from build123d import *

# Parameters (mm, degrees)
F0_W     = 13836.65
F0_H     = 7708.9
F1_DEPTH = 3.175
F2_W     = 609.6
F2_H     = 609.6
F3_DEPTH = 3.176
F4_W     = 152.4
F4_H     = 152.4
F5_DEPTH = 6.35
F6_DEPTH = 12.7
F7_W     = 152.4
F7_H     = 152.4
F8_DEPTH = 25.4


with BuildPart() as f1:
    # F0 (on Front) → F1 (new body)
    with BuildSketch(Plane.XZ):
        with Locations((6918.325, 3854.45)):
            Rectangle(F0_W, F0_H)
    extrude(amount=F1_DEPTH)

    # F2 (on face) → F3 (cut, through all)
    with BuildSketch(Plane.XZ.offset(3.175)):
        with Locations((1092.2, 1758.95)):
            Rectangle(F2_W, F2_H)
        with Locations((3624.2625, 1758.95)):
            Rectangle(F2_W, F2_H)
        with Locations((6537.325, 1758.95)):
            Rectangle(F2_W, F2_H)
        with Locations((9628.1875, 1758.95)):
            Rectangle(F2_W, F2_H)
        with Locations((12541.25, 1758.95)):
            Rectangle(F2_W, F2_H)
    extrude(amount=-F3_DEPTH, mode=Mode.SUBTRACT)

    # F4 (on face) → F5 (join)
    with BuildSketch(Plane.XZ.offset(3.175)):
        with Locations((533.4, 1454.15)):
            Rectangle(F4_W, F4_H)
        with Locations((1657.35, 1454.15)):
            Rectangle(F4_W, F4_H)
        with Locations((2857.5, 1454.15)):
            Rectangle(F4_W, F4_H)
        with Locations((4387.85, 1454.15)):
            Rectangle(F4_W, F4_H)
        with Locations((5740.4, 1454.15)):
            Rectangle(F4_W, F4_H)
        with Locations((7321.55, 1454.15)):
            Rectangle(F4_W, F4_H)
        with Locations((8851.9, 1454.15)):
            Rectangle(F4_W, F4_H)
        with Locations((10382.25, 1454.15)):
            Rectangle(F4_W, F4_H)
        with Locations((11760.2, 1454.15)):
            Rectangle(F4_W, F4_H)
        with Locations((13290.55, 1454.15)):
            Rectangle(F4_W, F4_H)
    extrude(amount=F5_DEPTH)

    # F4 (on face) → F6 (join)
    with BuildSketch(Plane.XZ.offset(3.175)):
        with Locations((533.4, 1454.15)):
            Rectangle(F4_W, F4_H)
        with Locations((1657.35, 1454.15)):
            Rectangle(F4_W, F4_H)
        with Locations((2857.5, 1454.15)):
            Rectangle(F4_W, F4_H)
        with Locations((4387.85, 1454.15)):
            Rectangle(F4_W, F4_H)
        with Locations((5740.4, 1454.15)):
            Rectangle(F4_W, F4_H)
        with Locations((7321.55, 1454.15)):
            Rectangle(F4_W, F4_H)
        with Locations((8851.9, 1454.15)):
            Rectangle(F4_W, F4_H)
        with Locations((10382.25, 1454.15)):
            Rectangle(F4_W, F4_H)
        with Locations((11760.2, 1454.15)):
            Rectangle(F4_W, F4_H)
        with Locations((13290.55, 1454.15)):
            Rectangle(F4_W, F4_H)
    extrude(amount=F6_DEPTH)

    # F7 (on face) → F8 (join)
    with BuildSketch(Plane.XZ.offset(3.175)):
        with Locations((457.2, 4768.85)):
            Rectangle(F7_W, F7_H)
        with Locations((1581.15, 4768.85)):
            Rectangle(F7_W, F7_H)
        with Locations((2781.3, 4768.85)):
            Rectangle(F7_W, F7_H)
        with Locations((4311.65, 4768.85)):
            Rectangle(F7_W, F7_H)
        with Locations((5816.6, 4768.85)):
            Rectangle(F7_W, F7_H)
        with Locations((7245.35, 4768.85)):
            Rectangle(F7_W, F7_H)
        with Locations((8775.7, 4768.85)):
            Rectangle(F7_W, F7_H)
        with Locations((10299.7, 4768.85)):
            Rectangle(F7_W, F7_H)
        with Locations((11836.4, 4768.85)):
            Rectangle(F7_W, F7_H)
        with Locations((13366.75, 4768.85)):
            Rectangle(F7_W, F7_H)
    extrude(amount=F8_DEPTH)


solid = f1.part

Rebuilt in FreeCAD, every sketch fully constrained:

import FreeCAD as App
import Part
import Sketcher
Q = App.Units.Quantity


def add_polygon(sketch, points):
    """Adds a closed chain of lines whose ends are joined by coincident constraints."""
    first, n = sketch.GeometryCount, len(points)
    for a, b in zip(points, points[1:] + points[:1]):
        sketch.addGeometry(Part.LineSegment(App.Vector(*a, 0), App.Vector(*b, 0)), False)
    for i in range(n):
        sketch.addConstraint(Sketcher.Constraint("Coincident", first + i, 2, first + (i + 1) % n, 1))

doc = App.newDocument("Part")
body = doc.addObject("PartDesign::Body", "Body")

# Sketch on XZ plane
sketch1 = body.newObject("Sketcher::SketchObject", "Sketch")
sketch1.AttachmentSupport = (doc.getObject("XZ_Plane"), [""])
sketch1.MapMode = "FlatFace"
add_polygon(sketch1, [(0, 7709), (0, 0), (13837, 0), (13837, 7709)])  # lines 0-3
sketch1.addConstraint([
    Sketcher.Constraint("Vertical", 0),
    Sketcher.Constraint("Horizontal", 1),
    Sketcher.Constraint("Vertical", 2),
    Sketcher.Constraint("Horizontal", 3),
    Sketcher.Constraint("Coincident", 0, 2, -1, 1),
    Sketcher.Constraint("DistanceY", 0, 2, 0, 1, Q("303.5 in")),
    Sketcher.Constraint("DistanceX", 1, 1, 1, 2, Q("544.75 in")),
])
pad1 = body.newObject("PartDesign::Pad", "Pad")
pad1.Profile = sketch1
pad1.Length = Q("0.125 in")

# Sketch on XZ plane
sketch2 = body.newObject("Sketcher::SketchObject", "Sketch001")
sketch2.AttachmentSupport = (doc.getObject("XZ_Plane"), [""])
sketch2.MapMode = "FlatFace"
sketch2.AttachmentOffset = App.Placement(App.Vector(0, 0, 0.125 * 25.4), App.Rotation())
add_polygon(sketch2, [(787, 2064), (787, 1454), (1397, 1454), (1397, 2064)])  # lines 0-3
add_polygon(sketch2, [(3319, 2064), (3319, 1454), (3929, 1454), (3929, 2064)])  # lines 4-7
add_polygon(sketch2, [(6233, 2064), (6233, 1454), (6842, 1454), (6842, 2064)])  # lines 8-11
add_polygon(sketch2, [(9323, 2064), (9323, 1454), (9933, 1454), (9933, 2064)])  # lines 12-15
add_polygon(sketch2, [(12236, 2064), (12236, 1454), (12846, 1454), (12846, 2064)])  # lines 16-19
sketch2.addConstraint([
    Sketcher.Constraint("Vertical", 0),
    Sketcher.Constraint("Horizontal", 1),
    Sketcher.Constraint("Vertical", 2),
    Sketcher.Constraint("Horizontal", 3),
    Sketcher.Constraint("Vertical", 4),
    Sketcher.Constraint("Horizontal", 5),
    Sketcher.Constraint("Vertical", 6),
    Sketcher.Constraint("Horizontal", 7),
    Sketcher.Constraint("Vertical", 8),
    Sketcher.Constraint("Horizontal", 9),
    Sketcher.Constraint("Vertical", 10),
    Sketcher.Constraint("Horizontal", 11),
    Sketcher.Constraint("Vertical", 12),
    Sketcher.Constraint("Horizontal", 13),
    Sketcher.Constraint("Vertical", 14),
    Sketcher.Constraint("Horizontal", 15),
    Sketcher.Constraint("Vertical", 16),
    Sketcher.Constraint("Horizontal", 17),
    Sketcher.Constraint("Vertical", 18),
    Sketcher.Constraint("Horizontal", 19),
    Sketcher.Constraint("Horizontal", 1, 2, 4, 2),
    Sketcher.Constraint("Horizontal", 3, 2, 6, 2),
    Sketcher.Constraint("Horizontal", 5, 2, 8, 2),
    Sketcher.Constraint("Horizontal", 7, 2, 10, 2),
    Sketcher.Constraint("Horizontal", 9, 2, 12, 2),
    Sketcher.Constraint("Horizontal", 11, 2, 14, 2),
    Sketcher.Constraint("Horizontal", 13, 2, 16, 2),
    Sketcher.Constraint("Horizontal", 15, 2, 18, 2),
    Sketcher.Constraint("Equal", 3, 5),
    Sketcher.Constraint("Equal", 7, 9),
    Sketcher.Constraint("Equal", 11, 13),
    Sketcher.Constraint("Equal", 15, 17),
    Sketcher.Constraint("Equal", 19, 0),
    Sketcher.Constraint("DistanceX", 1, 1, 1, 2, Q("24 in")),
    Sketcher.Constraint("DistanceX", -1, 1, 0, 2, Q("31 in")),
    Sketcher.Constraint("DistanceY", -1, 1, 0, 2, Q("57.25 in")),
    Sketcher.Constraint("DistanceX", -1, 1, 16, 2, Q("481.75 in")),
    Sketcher.Constraint("DistanceX", -1, 1, 4, 2, Q("130.6875 in")),
    Sketcher.Constraint("DistanceX", -1, 1, 8, 2, Q("245.375 in")),
    Sketcher.Constraint("DistanceX", -1, 1, 12, 2, Q("367.0625 in")),
])
pocket1 = body.newObject("PartDesign::Pocket", "Pocket")
pocket1.Profile = sketch2
pocket1.Type = "ThroughAll"

# Sketch on XZ plane
sketch3 = body.newObject("Sketcher::SketchObject", "Sketch002")
sketch3.AttachmentSupport = (doc.getObject("XZ_Plane"), [""])
sketch3.MapMode = "FlatFace"
sketch3.AttachmentOffset = App.Placement(App.Vector(0, 0, 0.125 * 25.4), App.Rotation())
add_polygon(sketch3, [(457, 1530), (457, 1378), (610, 1378), (610, 1530)])  # lines 0-3
add_polygon(sketch3, [(1581, 1530), (1581, 1378), (1734, 1378), (1734, 1530)])  # lines 4-7
add_polygon(sketch3, [(2781, 1530), (2781, 1378), (2934, 1378), (2934, 1530)])  # lines 8-11
add_polygon(sketch3, [(4312, 1530), (4312, 1378), (4464, 1378), (4464, 1530)])  # lines 12-15
add_polygon(sketch3, [(5664, 1530), (5664, 1378), (5817, 1378), (5817, 1530)])  # lines 16-19
add_polygon(sketch3, [(7245, 1530), (7245, 1378), (7398, 1378), (7398, 1530)])  # lines 20-23
add_polygon(sketch3, [(8776, 1530), (8776, 1378), (8928, 1378), (8928, 1530)])  # lines 24-27
add_polygon(sketch3, [(10306, 1530), (10306, 1378), (10458, 1378), (10458, 1530)])  # lines 28-31
add_polygon(sketch3, [(11684, 1530), (11684, 1378), (11836, 1378), (11836, 1530)])  # lines 32-35
add_polygon(sketch3, [(13214, 1530), (13214, 1378), (13367, 1378), (13367, 1530)])  # lines 36-39
sketch3.addConstraint([
    Sketcher.Constraint("Vertical", 0),
    Sketcher.Constraint("Horizontal", 1),
    Sketcher.Constraint("Vertical", 2),
    Sketcher.Constraint("Horizontal", 3),
    Sketcher.Constraint("Vertical", 4),
    Sketcher.Constraint("Horizontal", 5),
    Sketcher.Constraint("Vertical", 6),
    Sketcher.Constraint("Horizontal", 7),
    Sketcher.Constraint("Vertical", 8),
    Sketcher.Constraint("Horizontal", 9),
    Sketcher.Constraint("Vertical", 10),
    Sketcher.Constraint("Horizontal", 11),
    Sketcher.Constraint("Vertical", 12),
    Sketcher.Constraint("Horizontal", 13),
    Sketcher.Constraint("Vertical", 14),
    Sketcher.Constraint("Horizontal", 15),
    Sketcher.Constraint("Vertical", 16),
    Sketcher.Constraint("Horizontal", 17),
    Sketcher.Constraint("Vertical", 18),
    Sketcher.Constraint("Horizontal", 19),
    Sketcher.Constraint("Vertical", 20),
    Sketcher.Constraint("Horizontal", 21),
    Sketcher.Constraint("Vertical", 22),
    Sketcher.Constraint("Horizontal", 23),
    Sketcher.Constraint("Vertical", 24),
    Sketcher.Constraint("Horizontal", 25),
    Sketcher.Constraint("Vertical", 26),
    Sketcher.Constraint("Horizontal", 27),
    Sketcher.Constraint("Vertical", 28),
    Sketcher.Constraint("Horizontal", 29),
    Sketcher.Constraint("Vertical", 30),
    Sketcher.Constraint("Horizontal", 31),
    Sketcher.Constraint("Vertical", 32),
    Sketcher.Constraint("Horizontal", 33),
    Sketcher.Constraint("Vertical", 34),
    Sketcher.Constraint("Horizontal", 35),
    Sketcher.Constraint("Vertical", 36),
    Sketcher.Constraint("Horizontal", 37),
    Sketcher.Constraint("Vertical", 38),
    Sketcher.Constraint("Horizontal", 39),
    Sketcher.Constraint("Horizontal", 1, 2, 4, 2),
    Sketcher.Constraint("Horizontal", 3, 2, 6, 2),
    Sketcher.Constraint("Horizontal", 5, 2, 8, 2),
    Sketcher.Constraint("Horizontal", 7, 2, 10, 2),
    Sketcher.Constraint("Horizontal", 9, 2, 12, 2),
    Sketcher.Constraint("Horizontal", 11, 2, 14, 2),
    Sketcher.Constraint("Horizontal", 13, 2, 16, 2),
    Sketcher.Constraint("Horizontal", 15, 2, 18, 2),
    Sketcher.Constraint("Horizontal", 17, 2, 20, 2),
    Sketcher.Constraint("Horizontal", 19, 2, 22, 2),
    Sketcher.Constraint("Horizontal", 21, 2, 24, 2),
    Sketcher.Constraint("Horizontal", 23, 2, 26, 2),
    Sketcher.Constraint("Horizontal", 25, 2, 28, 2),
    Sketcher.Constraint("Horizontal", 27, 2, 30, 2),
    Sketcher.Constraint("Horizontal", 29, 2, 32, 2),
    Sketcher.Constraint("Horizontal", 31, 2, 34, 2),
    Sketcher.Constraint("Horizontal", 33, 2, 36, 2),
    Sketcher.Constraint("Horizontal", 35, 2, 38, 2),
    Sketcher.Constraint("Equal", 3, 5),
    Sketcher.Constraint("Equal", 7, 9),
    Sketcher.Constraint("Equal", 11, 13),
    Sketcher.Constraint("Equal", 15, 17),
    Sketcher.Constraint("Equal", 19, 21),
    Sketcher.Constraint("Equal", 23, 25),
    Sketcher.Constraint("Equal", 27, 29),
    Sketcher.Constraint("Equal", 31, 33),
    Sketcher.Constraint("Equal", 35, 37),
    Sketcher.Constraint("Equal", 39, 0),
    Sketcher.Constraint("DistanceX", 1, 1, 1, 2, Q("6 in")),
    Sketcher.Constraint("DistanceX", -1, 1, 0, 2, Q("18 in")),
    Sketcher.Constraint("DistanceX", -1, 1, 16, 2, Q("223 in")),
    Sketcher.Constraint("DistanceX", -1, 1, 32, 2, Q("460 in")),
    Sketcher.Constraint("DistanceX", -1, 1, 8, 2, Q("109.5 in")),
    Sketcher.Constraint("DistanceX", -1, 1, 24, 2, Q("345.5 in")),
    Sketcher.Constraint("DistanceX", 5, 2, 12, 2, Q("101.5 in")),
    Sketcher.Constraint("DistanceX", 13, 2, 20, 2, Q("109.5 in")),
    Sketcher.Constraint("DistanceX", 21, 2, 28, 2, Q("114.5 in")),
    Sketcher.Constraint("DistanceX", 29, 2, 36, 2, Q("108.5 in")),
    Sketcher.Constraint("DistanceY", -1, 1, 0, 2, Q("54.25 in")),
    Sketcher.Constraint("DistanceX", -1, 1, 4, 2, Q("62.25 in")),
])
pad2 = body.newObject("PartDesign::Pad", "Pad001")
pad2.Profile = sketch3
pad2.Length = Q("0.25 in")

# Sketch on XZ plane
sketch4 = body.newObject("Sketcher::SketchObject", "Sketch003")
sketch4.AttachmentSupport = (doc.getObject("XZ_Plane"), [""])
sketch4.MapMode = "FlatFace"
sketch4.AttachmentOffset = App.Placement(App.Vector(0, 0, 0.125 * 25.4), App.Rotation())
add_polygon(sketch4, [(457, 1530), (457, 1378), (610, 1378), (610, 1530)])  # lines 0-3
add_polygon(sketch4, [(1581, 1530), (1581, 1378), (1734, 1378), (1734, 1530)])  # lines 4-7
add_polygon(sketch4, [(2781, 1530), (2781, 1378), (2934, 1378), (2934, 1530)])  # lines 8-11
add_polygon(sketch4, [(4312, 1530), (4312, 1378), (4464, 1378), (4464, 1530)])  # lines 12-15
add_polygon(sketch4, [(5664, 1530), (5664, 1378), (5817, 1378), (5817, 1530)])  # lines 16-19
add_polygon(sketch4, [(7245, 1530), (7245, 1378), (7398, 1378), (7398, 1530)])  # lines 20-23
add_polygon(sketch4, [(8776, 1530), (8776, 1378), (8928, 1378), (8928, 1530)])  # lines 24-27
add_polygon(sketch4, [(10306, 1530), (10306, 1378), (10458, 1378), (10458, 1530)])  # lines 28-31
add_polygon(sketch4, [(11684, 1530), (11684, 1378), (11836, 1378), (11836, 1530)])  # lines 32-35
add_polygon(sketch4, [(13214, 1530), (13214, 1378), (13367, 1378), (13367, 1530)])  # lines 36-39
sketch4.addConstraint([
    Sketcher.Constraint("Vertical", 0),
    Sketcher.Constraint("Horizontal", 1),
    Sketcher.Constraint("Vertical", 2),
    Sketcher.Constraint("Horizontal", 3),
    Sketcher.Constraint("Vertical", 4),
    Sketcher.Constraint("Horizontal", 5),
    Sketcher.Constraint("Vertical", 6),
    Sketcher.Constraint("Horizontal", 7),
    Sketcher.Constraint("Vertical", 8),
    Sketcher.Constraint("Horizontal", 9),
    Sketcher.Constraint("Vertical", 10),
    Sketcher.Constraint("Horizontal", 11),
    Sketcher.Constraint("Vertical", 12),
    Sketcher.Constraint("Horizontal", 13),
    Sketcher.Constraint("Vertical", 14),
    Sketcher.Constraint("Horizontal", 15),
    Sketcher.Constraint("Vertical", 16),
    Sketcher.Constraint("Horizontal", 17),
    Sketcher.Constraint("Vertical", 18),
    Sketcher.Constraint("Horizontal", 19),
    Sketcher.Constraint("Vertical", 20),
    Sketcher.Constraint("Horizontal", 21),
    Sketcher.Constraint("Vertical", 22),
    Sketcher.Constraint("Horizontal", 23),
    Sketcher.Constraint("Vertical", 24),
    Sketcher.Constraint("Horizontal", 25),
    Sketcher.Constraint("Vertical", 26),
    Sketcher.Constraint("Horizontal", 27),
    Sketcher.Constraint("Vertical", 28),
    Sketcher.Constraint("Horizontal", 29),
    Sketcher.Constraint("Vertical", 30),
    Sketcher.Constraint("Horizontal", 31),
    Sketcher.Constraint("Vertical", 32),
    Sketcher.Constraint("Horizontal", 33),
    Sketcher.Constraint("Vertical", 34),
    Sketcher.Constraint("Horizontal", 35),
    Sketcher.Constraint("Vertical", 36),
    Sketcher.Constraint("Horizontal", 37),
    Sketcher.Constraint("Vertical", 38),
    Sketcher.Constraint("Horizontal", 39),
    Sketcher.Constraint("Horizontal", 1, 2, 4, 2),
    Sketcher.Constraint("Horizontal", 3, 2, 6, 2),
    Sketcher.Constraint("Horizontal", 5, 2, 8, 2),
    Sketcher.Constraint("Horizontal", 7, 2, 10, 2),
    Sketcher.Constraint("Horizontal", 9, 2, 12, 2),
    Sketcher.Constraint("Horizontal", 11, 2, 14, 2),
    Sketcher.Constraint("Horizontal", 13, 2, 16, 2),
    Sketcher.Constraint("Horizontal", 15, 2, 18, 2),
    Sketcher.Constraint("Horizontal", 17, 2, 20, 2),
    Sketcher.Constraint("Horizontal", 19, 2, 22, 2),
    Sketcher.Constraint("Horizontal", 21, 2, 24, 2),
    Sketcher.Constraint("Horizontal", 23, 2, 26, 2),
    Sketcher.Constraint("Horizontal", 25, 2, 28, 2),
    Sketcher.Constraint("Horizontal", 27, 2, 30, 2),
    Sketcher.Constraint("Horizontal", 29, 2, 32, 2),
    Sketcher.Constraint("Horizontal", 31, 2, 34, 2),
    Sketcher.Constraint("Horizontal", 33, 2, 36, 2),
    Sketcher.Constraint("Horizontal", 35, 2, 38, 2),
    Sketcher.Constraint("Equal", 3, 5),
    Sketcher.Constraint("Equal", 7, 9),
    Sketcher.Constraint("Equal", 11, 13),
    Sketcher.Constraint("Equal", 15, 17),
    Sketcher.Constraint("Equal", 19, 21),
    Sketcher.Constraint("Equal", 23, 25),
    Sketcher.Constraint("Equal", 27, 29),
    Sketcher.Constraint("Equal", 31, 33),
    Sketcher.Constraint("Equal", 35, 37),
    Sketcher.Constraint("Equal", 39, 0),
    Sketcher.Constraint("DistanceX", 1, 1, 1, 2, Q("6 in")),
    Sketcher.Constraint("DistanceX", -1, 1, 0, 2, Q("18 in")),
    Sketcher.Constraint("DistanceX", -1, 1, 16, 2, Q("223 in")),
    Sketcher.Constraint("DistanceX", -1, 1, 32, 2, Q("460 in")),
    Sketcher.Constraint("DistanceX", -1, 1, 8, 2, Q("109.5 in")),
    Sketcher.Constraint("DistanceX", -1, 1, 24, 2, Q("345.5 in")),
    Sketcher.Constraint("DistanceX", 5, 2, 12, 2, Q("101.5 in")),
    Sketcher.Constraint("DistanceX", 13, 2, 20, 2, Q("109.5 in")),
    Sketcher.Constraint("DistanceX", 21, 2, 28, 2, Q("114.5 in")),
    Sketcher.Constraint("DistanceX", 29, 2, 36, 2, Q("108.5 in")),
    Sketcher.Constraint("DistanceY", -1, 1, 0, 2, Q("54.25 in")),
    Sketcher.Constraint("DistanceX", -1, 1, 4, 2, Q("62.25 in")),
])
pad3 = body.newObject("PartDesign::Pad", "Pad002")
pad3.Profile = sketch4
pad3.Length = Q("0.5 in")

# Sketch on XZ plane
sketch5 = body.newObject("Sketcher::SketchObject", "Sketch004")
sketch5.AttachmentSupport = (doc.getObject("XZ_Plane"), [""])
sketch5.MapMode = "FlatFace"
sketch5.AttachmentOffset = App.Placement(App.Vector(0, 0, 0.125 * 25.4), App.Rotation())
add_polygon(sketch5, [(381, 4845), (381, 4693), (533, 4693), (533, 4845)])  # lines 0-3
add_polygon(sketch5, [(1505, 4845), (1505, 4693), (1657, 4693), (1657, 4845)])  # lines 4-7
add_polygon(sketch5, [(2705, 4845), (2705, 4693), (2858, 4693), (2858, 4845)])  # lines 8-11
add_polygon(sketch5, [(4235, 4845), (4235, 4693), (4388, 4693), (4388, 4845)])  # lines 12-15
add_polygon(sketch5, [(5740, 4845), (5740, 4693), (5893, 4693), (5893, 4845)])  # lines 16-19
add_polygon(sketch5, [(7169, 4845), (7169, 4693), (7322, 4693), (7322, 4845)])  # lines 20-23
add_polygon(sketch5, [(8700, 4845), (8700, 4693), (8852, 4693), (8852, 4845)])  # lines 24-27
add_polygon(sketch5, [(10224, 4845), (10224, 4693), (10376, 4693), (10376, 4845)])  # lines 28-31
add_polygon(sketch5, [(11760, 4845), (11760, 4693), (11913, 4693), (11913, 4845)])  # lines 32-35
add_polygon(sketch5, [(13291, 4845), (13291, 4693), (13443, 4693), (13443, 4845)])  # lines 36-39
sketch5.addConstraint([
    Sketcher.Constraint("Vertical", 0),
    Sketcher.Constraint("Horizontal", 1),
    Sketcher.Constraint("Vertical", 2),
    Sketcher.Constraint("Horizontal", 3),
    Sketcher.Constraint("Vertical", 4),
    Sketcher.Constraint("Horizontal", 5),
    Sketcher.Constraint("Vertical", 6),
    Sketcher.Constraint("Horizontal", 7),
    Sketcher.Constraint("Vertical", 8),
    Sketcher.Constraint("Horizontal", 9),
    Sketcher.Constraint("Vertical", 10),
    Sketcher.Constraint("Horizontal", 11),
    Sketcher.Constraint("Vertical", 12),
    Sketcher.Constraint("Horizontal", 13),
    Sketcher.Constraint("Vertical", 14),
    Sketcher.Constraint("Horizontal", 15),
    Sketcher.Constraint("Vertical", 16),
    Sketcher.Constraint("Horizontal", 17),
    Sketcher.Constraint("Vertical", 18),
    Sketcher.Constraint("Horizontal", 19),
    Sketcher.Constraint("Vertical", 20),
    Sketcher.Constraint("Horizontal", 21),
    Sketcher.Constraint("Vertical", 22),
    Sketcher.Constraint("Horizontal", 23),
    Sketcher.Constraint("Vertical", 24),
    Sketcher.Constraint("Horizontal", 25),
    Sketcher.Constraint("Vertical", 26),
    Sketcher.Constraint("Horizontal", 27),
    Sketcher.Constraint("Vertical", 28),
    Sketcher.Constraint("Horizontal", 29),
    Sketcher.Constraint("Vertical", 30),
    Sketcher.Constraint("Horizontal", 31),
    Sketcher.Constraint("Vertical", 32),
    Sketcher.Constraint("Horizontal", 33),
    Sketcher.Constraint("Vertical", 34),
    Sketcher.Constraint("Horizontal", 35),
    Sketcher.Constraint("Vertical", 36),
    Sketcher.Constraint("Horizontal", 37),
    Sketcher.Constraint("Vertical", 38),
    Sketcher.Constraint("Horizontal", 39),
    Sketcher.Constraint("Horizontal", 1, 2, 4, 2),
    Sketcher.Constraint("Horizontal", 3, 2, 6, 2),
    Sketcher.Constraint("Horizontal", 5, 2, 8, 2),
    Sketcher.Constraint("Horizontal", 7, 2, 10, 2),
    Sketcher.Constraint("Horizontal", 9, 2, 12, 2),
    Sketcher.Constraint("Horizontal", 11, 2, 14, 2),
    Sketcher.Constraint("Horizontal", 13, 2, 16, 2),
    Sketcher.Constraint("Horizontal", 15, 2, 18, 2),
    Sketcher.Constraint("Horizontal", 17, 2, 20, 2),
    Sketcher.Constraint("Horizontal", 19, 2, 22, 2),
    Sketcher.Constraint("Horizontal", 21, 2, 24, 2),
    Sketcher.Constraint("Horizontal", 23, 2, 26, 2),
    Sketcher.Constraint("Horizontal", 25, 2, 28, 2),
    Sketcher.Constraint("Horizontal", 27, 2, 30, 2),
    Sketcher.Constraint("Horizontal", 29, 2, 32, 2),
    Sketcher.Constraint("Horizontal", 31, 2, 34, 2),
    Sketcher.Constraint("Horizontal", 33, 2, 36, 2),
    Sketcher.Constraint("Horizontal", 35, 2, 38, 2),
    Sketcher.Constraint("Equal", 3, 5),
    Sketcher.Constraint("Equal", 7, 9),
    Sketcher.Constraint("Equal", 11, 13),
    Sketcher.Constraint("Equal", 15, 17),
    Sketcher.Constraint("Equal", 19, 21),
    Sketcher.Constraint("Equal", 23, 25),
    Sketcher.Constraint("Equal", 27, 29),
    Sketcher.Constraint("Equal", 31, 33),
    Sketcher.Constraint("Equal", 35, 37),
    Sketcher.Constraint("Equal", 39, 0),
    Sketcher.Constraint("DistanceX", 1, 1, 1, 2, Q("6 in")),
    Sketcher.Constraint("DistanceX", -1, 1, 0, 2, Q("15 in")),
    Sketcher.Constraint("DistanceX", -1, 1, 16, 2, Q("226 in")),
    Sketcher.Constraint("DistanceX", -1, 1, 32, 2, Q("463 in")),
    Sketcher.Constraint("DistanceX", 25, 2, 28, 2, Q("54 in")),
    Sketcher.Constraint("DistanceX", -1, 1, 8, 2, Q("106.5 in")),
    Sketcher.Constraint("DistanceX", -1, 1, 24, 2, Q("342.5 in")),
    Sketcher.Constraint("DistanceX", 5, 2, 12, 2, Q("101.5 in")),
    Sketcher.Constraint("DistanceX", 13, 2, 20, 2, Q("109.5 in")),
    Sketcher.Constraint("DistanceY", -1, 1, 0, 2, Q("184.75 in")),
    Sketcher.Constraint("DistanceX", -1, 1, 4, 2, Q("59.25 in")),
    Sketcher.Constraint("DistanceX", -1, 1, 36, 2, Q("523.25 in")),
])
pad4 = body.newObject("PartDesign::Pad", "Pad003")
pad4.Profile = sketch5
pad4.Length = Q("1 in")

doc.recompute()
